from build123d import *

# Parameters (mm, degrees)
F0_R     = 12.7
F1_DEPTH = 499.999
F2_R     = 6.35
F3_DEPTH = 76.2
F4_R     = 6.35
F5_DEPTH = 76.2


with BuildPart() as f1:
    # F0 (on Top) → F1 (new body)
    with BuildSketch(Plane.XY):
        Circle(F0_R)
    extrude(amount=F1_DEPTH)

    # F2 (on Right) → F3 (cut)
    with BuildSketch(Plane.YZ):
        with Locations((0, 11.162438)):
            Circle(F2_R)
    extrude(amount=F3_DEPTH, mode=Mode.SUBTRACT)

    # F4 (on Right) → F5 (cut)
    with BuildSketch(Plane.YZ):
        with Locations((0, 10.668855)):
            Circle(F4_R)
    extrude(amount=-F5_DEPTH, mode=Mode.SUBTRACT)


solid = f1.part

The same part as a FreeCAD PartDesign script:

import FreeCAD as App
import Part
import Sketcher
Q = App.Units.Quantity

doc = App.newDocument("Part")
body = doc.addObject("PartDesign::Body", "Body")

sketch1 = body.newObject("Sketcher::SketchObject", "Sketch")
sketch1.AttachmentSupport = (doc.getObject("XY_Plane"), [""])
sketch1.MapMode = "FlatFace"
sketch1.addGeometry(Part.Circle(App.Vector(0, 0, 0), App.Vector(0, 0, 1), 13), False)
sketch1.addConstraint([
    Sketcher.Constraint("Coincident", 0, 3, -1, 1),
    Sketcher.Constraint("Diameter", 0, Q("1 in")),
])
pad1 = body.newObject("PartDesign::Pad", "Pad")
pad1.Profile = sketch1
pad1.Length = Q("19.685 in")

sketch2 = body.newObject("Sketcher::SketchObject", "Sketch001")
sketch2.AttachmentSupport = (doc.getObject("YZ_Plane"), [""])
sketch2.MapMode = "FlatFace"
sketch2.addGeometry(Part.Circle(App.Vector(0, 11, 0), App.Vector(0, 0, 1), 6), False)
sketch2.addConstraint([
    Sketcher.Constraint("PointOnObject", 0, 3, -2),
    Sketcher.Constraint("Diameter", 0, Q("0.5 in")),
    Sketcher.Constraint("DistanceY", -1, 1, 0, 3, Q("11.162438 mm")),
])
pocket1 = body.newObject("PartDesign::Pocket", "Pocket")
pocket1.Profile = sketch2
pocket1.Length = Q("3 in")
pocket1.Reversed = True

sketch3 = body.newObject("Sketcher::SketchObject", "Sketch002")
sketch3.AttachmentSupport = (doc.getObject("YZ_Plane"), [""])
sketch3.MapMode = "FlatFace"
sketch3.addGeometry(Part.Circle(App.Vector(0, 11, 0), App.Vector(0, 0, 1), 6), False)
sketch3.addConstraint([
    Sketcher.Constraint("PointOnObject", 0, 3, -2),
    Sketcher.Constraint("Diameter", 0, Q("0.5 in")),
    Sketcher.Constraint("DistanceY", -1, 1, 0, 3, Q("10.668855 mm")),
])
pocket2 = body.newObject("PartDesign::Pocket", "Pocket001")
pocket2.Profile = sketch3
pocket2.Length = Q("3 in")

doc.recompute()
